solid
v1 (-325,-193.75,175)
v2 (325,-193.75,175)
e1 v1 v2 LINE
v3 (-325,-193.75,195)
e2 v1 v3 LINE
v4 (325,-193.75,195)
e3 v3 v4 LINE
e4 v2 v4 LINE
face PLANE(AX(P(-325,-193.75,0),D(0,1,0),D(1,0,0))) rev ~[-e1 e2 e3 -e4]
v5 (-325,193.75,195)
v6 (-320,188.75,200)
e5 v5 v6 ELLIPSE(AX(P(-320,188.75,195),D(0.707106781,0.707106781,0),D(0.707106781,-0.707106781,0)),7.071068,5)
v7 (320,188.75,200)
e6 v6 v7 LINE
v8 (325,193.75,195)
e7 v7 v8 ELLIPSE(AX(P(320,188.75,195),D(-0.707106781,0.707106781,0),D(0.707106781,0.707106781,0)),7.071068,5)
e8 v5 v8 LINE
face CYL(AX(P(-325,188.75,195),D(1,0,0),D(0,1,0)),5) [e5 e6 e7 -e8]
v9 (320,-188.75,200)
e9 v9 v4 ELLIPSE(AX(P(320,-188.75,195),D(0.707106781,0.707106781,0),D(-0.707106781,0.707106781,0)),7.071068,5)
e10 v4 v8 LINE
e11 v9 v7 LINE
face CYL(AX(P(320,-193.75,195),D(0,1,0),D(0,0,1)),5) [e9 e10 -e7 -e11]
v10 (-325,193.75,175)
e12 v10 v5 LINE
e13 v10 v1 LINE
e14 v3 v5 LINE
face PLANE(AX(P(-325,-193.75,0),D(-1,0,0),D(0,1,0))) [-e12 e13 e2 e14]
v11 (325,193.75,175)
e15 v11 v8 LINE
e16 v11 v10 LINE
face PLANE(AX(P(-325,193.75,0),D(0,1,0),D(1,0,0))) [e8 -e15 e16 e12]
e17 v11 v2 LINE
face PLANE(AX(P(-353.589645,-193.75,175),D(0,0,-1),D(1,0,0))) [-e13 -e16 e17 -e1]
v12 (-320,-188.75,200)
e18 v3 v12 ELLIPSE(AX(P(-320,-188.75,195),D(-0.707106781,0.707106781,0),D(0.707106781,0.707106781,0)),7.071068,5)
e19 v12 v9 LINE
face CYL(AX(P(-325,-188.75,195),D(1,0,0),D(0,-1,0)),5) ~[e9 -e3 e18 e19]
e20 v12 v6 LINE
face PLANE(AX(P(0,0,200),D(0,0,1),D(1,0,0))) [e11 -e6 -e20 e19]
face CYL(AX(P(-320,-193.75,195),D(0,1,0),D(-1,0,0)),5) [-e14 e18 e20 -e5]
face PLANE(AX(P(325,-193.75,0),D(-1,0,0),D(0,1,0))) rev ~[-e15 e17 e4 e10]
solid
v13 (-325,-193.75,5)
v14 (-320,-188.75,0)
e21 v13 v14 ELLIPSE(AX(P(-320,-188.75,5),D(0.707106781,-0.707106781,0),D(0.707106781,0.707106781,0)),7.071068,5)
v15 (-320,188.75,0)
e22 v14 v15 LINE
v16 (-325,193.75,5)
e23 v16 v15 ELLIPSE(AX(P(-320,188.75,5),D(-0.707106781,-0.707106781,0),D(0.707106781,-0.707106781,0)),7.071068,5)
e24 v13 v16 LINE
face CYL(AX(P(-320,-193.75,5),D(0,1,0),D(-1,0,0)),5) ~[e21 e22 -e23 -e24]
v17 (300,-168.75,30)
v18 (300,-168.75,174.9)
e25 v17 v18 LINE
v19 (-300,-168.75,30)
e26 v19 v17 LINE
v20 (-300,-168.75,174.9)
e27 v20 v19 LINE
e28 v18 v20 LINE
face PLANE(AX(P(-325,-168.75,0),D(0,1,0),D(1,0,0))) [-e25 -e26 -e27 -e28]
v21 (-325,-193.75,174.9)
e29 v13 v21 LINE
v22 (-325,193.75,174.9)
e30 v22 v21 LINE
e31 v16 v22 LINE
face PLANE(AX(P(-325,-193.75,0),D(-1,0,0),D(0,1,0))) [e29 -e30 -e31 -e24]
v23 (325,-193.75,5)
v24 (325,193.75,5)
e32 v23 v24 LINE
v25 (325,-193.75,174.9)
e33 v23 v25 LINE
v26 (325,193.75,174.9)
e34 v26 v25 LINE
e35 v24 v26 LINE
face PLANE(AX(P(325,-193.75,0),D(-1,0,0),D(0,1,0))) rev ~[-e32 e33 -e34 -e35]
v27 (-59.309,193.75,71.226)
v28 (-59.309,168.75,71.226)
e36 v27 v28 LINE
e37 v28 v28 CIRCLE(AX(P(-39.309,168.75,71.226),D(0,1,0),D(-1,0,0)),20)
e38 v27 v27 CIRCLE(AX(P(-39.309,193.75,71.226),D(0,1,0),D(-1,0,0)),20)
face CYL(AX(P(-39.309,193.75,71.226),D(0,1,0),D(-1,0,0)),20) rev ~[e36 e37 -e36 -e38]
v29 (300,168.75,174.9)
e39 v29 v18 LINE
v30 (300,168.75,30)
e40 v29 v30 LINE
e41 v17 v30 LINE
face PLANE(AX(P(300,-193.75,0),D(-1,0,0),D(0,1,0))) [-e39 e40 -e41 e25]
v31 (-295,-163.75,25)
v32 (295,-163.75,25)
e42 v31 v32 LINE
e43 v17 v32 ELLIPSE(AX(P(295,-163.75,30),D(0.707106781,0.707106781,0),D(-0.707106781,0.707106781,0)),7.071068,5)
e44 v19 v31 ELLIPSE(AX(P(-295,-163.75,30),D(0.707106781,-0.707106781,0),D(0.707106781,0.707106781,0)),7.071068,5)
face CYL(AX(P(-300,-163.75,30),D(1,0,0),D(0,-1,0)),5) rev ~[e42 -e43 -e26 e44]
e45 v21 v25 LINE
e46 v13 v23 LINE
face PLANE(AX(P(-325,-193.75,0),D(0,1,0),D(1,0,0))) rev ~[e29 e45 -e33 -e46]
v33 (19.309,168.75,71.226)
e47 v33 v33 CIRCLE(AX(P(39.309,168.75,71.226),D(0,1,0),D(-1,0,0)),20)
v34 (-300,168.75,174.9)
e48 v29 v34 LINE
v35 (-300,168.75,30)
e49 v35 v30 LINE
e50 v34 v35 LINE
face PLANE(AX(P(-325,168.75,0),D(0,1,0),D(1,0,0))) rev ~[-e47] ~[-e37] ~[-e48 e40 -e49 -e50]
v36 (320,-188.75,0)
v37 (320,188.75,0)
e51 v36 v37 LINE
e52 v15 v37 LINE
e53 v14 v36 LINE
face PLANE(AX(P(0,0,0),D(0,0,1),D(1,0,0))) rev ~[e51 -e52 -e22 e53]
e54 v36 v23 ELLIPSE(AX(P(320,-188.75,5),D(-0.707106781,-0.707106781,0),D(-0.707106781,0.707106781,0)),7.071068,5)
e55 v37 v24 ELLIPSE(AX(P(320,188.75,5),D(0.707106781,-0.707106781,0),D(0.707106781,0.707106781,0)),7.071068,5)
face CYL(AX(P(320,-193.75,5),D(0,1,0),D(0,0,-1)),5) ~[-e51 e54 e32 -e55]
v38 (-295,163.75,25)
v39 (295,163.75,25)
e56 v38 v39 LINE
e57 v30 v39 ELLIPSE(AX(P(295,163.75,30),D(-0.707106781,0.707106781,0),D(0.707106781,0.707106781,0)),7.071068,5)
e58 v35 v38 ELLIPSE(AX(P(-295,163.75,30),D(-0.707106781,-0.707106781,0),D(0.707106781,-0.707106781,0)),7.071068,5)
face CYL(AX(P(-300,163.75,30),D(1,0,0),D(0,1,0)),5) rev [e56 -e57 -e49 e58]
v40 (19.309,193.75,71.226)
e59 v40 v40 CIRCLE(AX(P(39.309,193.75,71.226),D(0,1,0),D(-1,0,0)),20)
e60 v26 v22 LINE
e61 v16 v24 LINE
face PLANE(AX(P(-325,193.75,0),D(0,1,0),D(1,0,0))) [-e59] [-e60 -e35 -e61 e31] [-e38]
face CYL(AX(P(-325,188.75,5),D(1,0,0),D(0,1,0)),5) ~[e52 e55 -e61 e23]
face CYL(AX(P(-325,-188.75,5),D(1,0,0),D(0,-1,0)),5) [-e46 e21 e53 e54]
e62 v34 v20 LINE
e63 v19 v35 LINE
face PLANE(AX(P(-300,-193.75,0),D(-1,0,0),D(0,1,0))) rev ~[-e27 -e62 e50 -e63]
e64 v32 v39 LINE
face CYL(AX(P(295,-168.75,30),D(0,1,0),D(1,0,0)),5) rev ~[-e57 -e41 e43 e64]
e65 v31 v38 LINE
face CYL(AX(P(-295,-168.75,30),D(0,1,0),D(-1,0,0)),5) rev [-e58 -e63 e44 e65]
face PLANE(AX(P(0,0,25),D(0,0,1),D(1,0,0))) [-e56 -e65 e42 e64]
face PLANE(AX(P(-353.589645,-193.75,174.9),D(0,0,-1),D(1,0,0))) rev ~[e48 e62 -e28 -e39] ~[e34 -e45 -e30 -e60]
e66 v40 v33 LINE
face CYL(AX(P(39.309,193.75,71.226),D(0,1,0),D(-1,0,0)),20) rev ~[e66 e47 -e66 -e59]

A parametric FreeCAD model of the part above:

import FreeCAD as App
import Part
import Sketcher

V = App.Vector
Q = App.Units.Quantity


def edges_at(feature, points):
    """Names of the edges that pass closest to the given points."""
    edges = feature.Shape.Edges
    near = lambda p: min(range(len(edges)), key=lambda i: edges[i].distToShape(Part.Vertex(*p))[0])
    return sorted({f"Edge{near(p) + 1}" for p in points})


def faces_at(feature, points):
    """Names of the faces that lie closest to the given points."""
    faces = feature.Shape.Faces
    near = lambda p: min(range(len(faces)), key=lambda i: faces[i].distToShape(Part.Vertex(*p))[0])
    return sorted({f"Face{near(p) + 1}" for p in points})

doc = App.newDocument("Part")
params = doc.addObject("Spreadsheet::Sheet", "Params")
for row, (alias, value) in enumerate([
    ("sketch1_width", "650 mm"),
    ("sketch1_height", "387.5 mm"),
    ("pad1_length", "200 mm"),
    ("thickness_wall", "25 mm"),
    ("sketch2_diameter", "40 mm"),
    ("pocket1_length", "25 mm"),
    ("fillet_radius", "5 mm"),
    ("sketch3_height", "0.1 mm"),
    ("pocket2_length", "500 mm"),
    ("sketch4_width", "610 mm"),
    ("sketch4_height", "347.5 mm"),
    ("pad2_length", "25 mm"),
], start=1):
    params.set(f"A{row}", alias)
    params.set(f"B{row}", "=" + value)
    params.setAlias(f"B{row}", alias)

body = doc.addObject("PartDesign::Body", "Body")
body.AllowCompound = True

sketch1 = doc.addObject("Sketcher::SketchObject", "Sketch")
body.addObject(sketch1)
sketch1.AttachmentSupport = (doc.XY_Plane, [""])
sketch1.MapMode = "FlatFace"
sketch1.addGeometry([
    Part.LineSegment(V(-325, 194, 0), V(-325, -194, 0)),
    Part.LineSegment(V(-325, -194, 0), V(325, -194, 0)),
    Part.LineSegment(V(325, -194, 0), V(325, 194, 0)),
    Part.LineSegment(V(325, 194, 0), V(-325, 194, 0)),
], False)
sketch1.addConstraint([
    Sketcher.Constraint("Coincident", 0, 2, 1, 1),
    Sketcher.Constraint("Coincident", 1, 2, 2, 1),
    Sketcher.Constraint("Coincident", 2, 2, 3, 1),
    Sketcher.Constraint("Coincident", 3, 2, 0, 1),
    Sketcher.Constraint("Vertical", 0),
    Sketcher.Constraint("Horizontal", 1),
    Sketcher.Constraint("Vertical", 2),
    Sketcher.Constraint("Horizontal", 3),
    Sketcher.Constraint("Symmetric", 0, 2, 2, 2, -1, 1),
    Sketcher.Constraint("DistanceX", 1, 1, 1, 2, Q("650 mm")),
    Sketcher.Constraint("DistanceY", 0, 2, 0, 1, Q("387.5 mm")),
])
sketch1.setExpression("Constraints[9]", "Params.sketch1_width")
sketch1.setExpression("Constraints[10]", "Params.sketch1_height")
pad1 = doc.addObject("PartDesign::Pad", "Pad")
body.addObject(pad1)
pad1.Profile = sketch1
pad1.setExpression("Length", "Params.pad1_length")
doc.recompute()

thickness = doc.addObject("PartDesign::Thickness", "Thickness")
body.addObject(thickness)
thickness.Base = (pad1, faces_at(pad1, [(0, 0, 200)]))
thickness.setExpression("Value", "Params.thickness_wall")
thickness.Reversed = True
thickness.Join = "Arc"

sketch2 = doc.addObject("Sketcher::SketchObject", "Sketch001")
body.addObject(sketch2)
sketch2.AttachmentSupport = (doc.XZ_Plane, [""])
sketch2.MapMode = "FlatFace"
sketch2.AttachmentOffset = App.Placement(V(0, 0, -193.75), App.Rotation())
sketch2.addGeometry([
    Part.Circle(V(39, 71, 0), V(0, 0, 1), 20),
    Part.Circle(V(-39, 71, 0), V(0, 0, 1), 20),
], False)
sketch2.addConstraint([
    Sketcher.Constraint("Equal", 0, 1),
    Sketcher.Constraint("Symmetric", 0, 3, 1, 3, -2),
    Sketcher.Constraint("Diameter", 0, Q("40 mm")),
    Sketcher.Constraint("DistanceX", -1, 1, 0, 3, Q("39.309 mm")),
    Sketcher.Constraint("DistanceY", -1, 1, 0, 3, Q("71.226 mm")),
])
sketch2.setExpression("Constraints[2]", "Params.sketch2_diameter")
pocket1 = doc.addObject("PartDesign::Pocket", "Pocket")
body.addObject(pocket1)
pocket1.Profile = sketch2
pocket1.setExpression("Length", "Params.pocket1_length")
pocket1.Reversed = True
doc.recompute()

fillet = doc.addObject("PartDesign::Fillet", "Fillet")
body.addObject(fillet)
fillet.Base = (pocket1, edges_at(pocket1, [
    (300, 0, 25),
    (0, 168.75, 25),
    (-300, 0, 25),
    (0, -168.75, 25),
    (325, 0, 200),
    (0, 193.75, 200),
    (-325, 0, 200),
    (0, -193.75, 200),
    (300, 0, 200),
    (0, -168.75, 200),
    (-300, 0, 200),
    (0, 168.75, 200),
    (325, 0, 0),
    (0, 193.75, 0),
    (-325, 0, 0),
    (0, -193.75, 0),
]))
fillet.setExpression("Radius", "Params.fillet_radius")

sketch3 = doc.addObject("Sketcher::SketchObject", "Sketch002")
body.addObject(sketch3)
sketch3.AttachmentSupport = (doc.XZ_Plane, [""])
sketch3.MapMode = "FlatFace"
sketch3.AttachmentOffset = App.Placement(V(0, 0, 193.75), App.Rotation())
sketch3.addGeometry([
    Part.LineSegment(V(-353.59, 175, 0), V(-353.59, 174.9, 0)),
    Part.LineSegment(V(-353.59, 174.9, 0), V(402.97, 174.9, 0)),
    Part.LineSegment(V(402.97, 174.9, 0), V(402.97, 175, 0)),
    Part.LineSegment(V(402.97, 175, 0), V(-353.59, 175, 0)),
], False)
sketch3.addConstraint([
    Sketcher.Constraint("Coincident", 0, 2, 1, 1),
    Sketcher.Constraint("Coincident", 1, 2, 2, 1),
    Sketcher.Constraint("Coincident", 2, 2, 3, 1),
    Sketcher.Constraint("Coincident", 3, 2, 0, 1),
    Sketcher.Constraint("Vertical", 0),
    Sketcher.Constraint("Horizontal", 1),
    Sketcher.Constraint("Vertical", 2),
    Sketcher.Constraint("Horizontal", 3),
    Sketcher.Constraint("DistanceY", 0, 2, 0, 1, Q("0.1 mm")),
    Sketcher.Constraint("DistanceY", -1, 1, 2, 2, Q("175 mm")),
    Sketcher.Constraint("DistanceX", 1, 1, 1, 2, Q("756.554973 mm")),
    Sketcher.Constraint("DistanceX", -1, 1, 1, 2, Q("402.965328 mm")),
])
sketch3.setExpression("Constraints[8]", "Params.sketch3_height")
pocket2 = doc.addObject("PartDesign::Pocket", "Pocket001")
body.addObject(pocket2)
pocket2.Profile = sketch3
pocket2.setExpression("Length", "Params.pocket2_length")

sketch4 = doc.addObject("Sketcher::SketchObject", "Sketch003")
body.addObject(sketch4)
sketch4.AttachmentSupport = (doc.XY_Plane, [""])
sketch4.MapMode = "FlatFace"
sketch4.AttachmentOffset = App.Placement(V(0, 0, 200), App.Rotation())
sketch4.addGeometry([
    Part.LineSegment(V(-305, 174, 0), V(-305, -174, 0)),
    Part.LineSegment(V(-305, -174, 0), V(305, -174, 0)),
    Part.LineSegment(V(305, -174, 0), V(305, 174, 0)),
    Part.LineSegment(V(305, 174, 0), V(-305, 174, 0)),
], False)
sketch4.addConstraint([
    Sketcher.Constraint("Coincident", 0, 2, 1, 1),
    Sketcher.Constraint("Coincident", 1, 2, 2, 1),
    Sketcher.Constraint("Coincident", 2, 2, 3, 1),
    Sketcher.Constraint("Coincident", 3, 2, 0, 1),
    Sketcher.Constraint("Vertical", 0),
    Sketcher.Constraint("Horizontal", 1),
    Sketcher.Constraint("Vertical", 2),
    Sketcher.Constraint("Horizontal", 3),
    Sketcher.Constraint("Symmetric", 0, 2, 2, 2, -1, 1),
    Sketcher.Constraint("DistanceX", 1, 1, 1, 2, Q("610 mm")),
    Sketcher.Constraint("DistanceY", 0, 2, 0, 1, Q("347.5 mm")),
])
sketch4.setExpression("Constraints[9]", "Params.sketch4_width")
sketch4.setExpression("Constraints[10]", "Params.sketch4_height")
pad2 = doc.addObject("PartDesign::Pad", "Pad001")
body.addObject(pad2)
pad2.Profile = sketch4
pad2.setExpression("Length", "Params.pad2_length")
pad2.Reversed = True

doc.recompute()
